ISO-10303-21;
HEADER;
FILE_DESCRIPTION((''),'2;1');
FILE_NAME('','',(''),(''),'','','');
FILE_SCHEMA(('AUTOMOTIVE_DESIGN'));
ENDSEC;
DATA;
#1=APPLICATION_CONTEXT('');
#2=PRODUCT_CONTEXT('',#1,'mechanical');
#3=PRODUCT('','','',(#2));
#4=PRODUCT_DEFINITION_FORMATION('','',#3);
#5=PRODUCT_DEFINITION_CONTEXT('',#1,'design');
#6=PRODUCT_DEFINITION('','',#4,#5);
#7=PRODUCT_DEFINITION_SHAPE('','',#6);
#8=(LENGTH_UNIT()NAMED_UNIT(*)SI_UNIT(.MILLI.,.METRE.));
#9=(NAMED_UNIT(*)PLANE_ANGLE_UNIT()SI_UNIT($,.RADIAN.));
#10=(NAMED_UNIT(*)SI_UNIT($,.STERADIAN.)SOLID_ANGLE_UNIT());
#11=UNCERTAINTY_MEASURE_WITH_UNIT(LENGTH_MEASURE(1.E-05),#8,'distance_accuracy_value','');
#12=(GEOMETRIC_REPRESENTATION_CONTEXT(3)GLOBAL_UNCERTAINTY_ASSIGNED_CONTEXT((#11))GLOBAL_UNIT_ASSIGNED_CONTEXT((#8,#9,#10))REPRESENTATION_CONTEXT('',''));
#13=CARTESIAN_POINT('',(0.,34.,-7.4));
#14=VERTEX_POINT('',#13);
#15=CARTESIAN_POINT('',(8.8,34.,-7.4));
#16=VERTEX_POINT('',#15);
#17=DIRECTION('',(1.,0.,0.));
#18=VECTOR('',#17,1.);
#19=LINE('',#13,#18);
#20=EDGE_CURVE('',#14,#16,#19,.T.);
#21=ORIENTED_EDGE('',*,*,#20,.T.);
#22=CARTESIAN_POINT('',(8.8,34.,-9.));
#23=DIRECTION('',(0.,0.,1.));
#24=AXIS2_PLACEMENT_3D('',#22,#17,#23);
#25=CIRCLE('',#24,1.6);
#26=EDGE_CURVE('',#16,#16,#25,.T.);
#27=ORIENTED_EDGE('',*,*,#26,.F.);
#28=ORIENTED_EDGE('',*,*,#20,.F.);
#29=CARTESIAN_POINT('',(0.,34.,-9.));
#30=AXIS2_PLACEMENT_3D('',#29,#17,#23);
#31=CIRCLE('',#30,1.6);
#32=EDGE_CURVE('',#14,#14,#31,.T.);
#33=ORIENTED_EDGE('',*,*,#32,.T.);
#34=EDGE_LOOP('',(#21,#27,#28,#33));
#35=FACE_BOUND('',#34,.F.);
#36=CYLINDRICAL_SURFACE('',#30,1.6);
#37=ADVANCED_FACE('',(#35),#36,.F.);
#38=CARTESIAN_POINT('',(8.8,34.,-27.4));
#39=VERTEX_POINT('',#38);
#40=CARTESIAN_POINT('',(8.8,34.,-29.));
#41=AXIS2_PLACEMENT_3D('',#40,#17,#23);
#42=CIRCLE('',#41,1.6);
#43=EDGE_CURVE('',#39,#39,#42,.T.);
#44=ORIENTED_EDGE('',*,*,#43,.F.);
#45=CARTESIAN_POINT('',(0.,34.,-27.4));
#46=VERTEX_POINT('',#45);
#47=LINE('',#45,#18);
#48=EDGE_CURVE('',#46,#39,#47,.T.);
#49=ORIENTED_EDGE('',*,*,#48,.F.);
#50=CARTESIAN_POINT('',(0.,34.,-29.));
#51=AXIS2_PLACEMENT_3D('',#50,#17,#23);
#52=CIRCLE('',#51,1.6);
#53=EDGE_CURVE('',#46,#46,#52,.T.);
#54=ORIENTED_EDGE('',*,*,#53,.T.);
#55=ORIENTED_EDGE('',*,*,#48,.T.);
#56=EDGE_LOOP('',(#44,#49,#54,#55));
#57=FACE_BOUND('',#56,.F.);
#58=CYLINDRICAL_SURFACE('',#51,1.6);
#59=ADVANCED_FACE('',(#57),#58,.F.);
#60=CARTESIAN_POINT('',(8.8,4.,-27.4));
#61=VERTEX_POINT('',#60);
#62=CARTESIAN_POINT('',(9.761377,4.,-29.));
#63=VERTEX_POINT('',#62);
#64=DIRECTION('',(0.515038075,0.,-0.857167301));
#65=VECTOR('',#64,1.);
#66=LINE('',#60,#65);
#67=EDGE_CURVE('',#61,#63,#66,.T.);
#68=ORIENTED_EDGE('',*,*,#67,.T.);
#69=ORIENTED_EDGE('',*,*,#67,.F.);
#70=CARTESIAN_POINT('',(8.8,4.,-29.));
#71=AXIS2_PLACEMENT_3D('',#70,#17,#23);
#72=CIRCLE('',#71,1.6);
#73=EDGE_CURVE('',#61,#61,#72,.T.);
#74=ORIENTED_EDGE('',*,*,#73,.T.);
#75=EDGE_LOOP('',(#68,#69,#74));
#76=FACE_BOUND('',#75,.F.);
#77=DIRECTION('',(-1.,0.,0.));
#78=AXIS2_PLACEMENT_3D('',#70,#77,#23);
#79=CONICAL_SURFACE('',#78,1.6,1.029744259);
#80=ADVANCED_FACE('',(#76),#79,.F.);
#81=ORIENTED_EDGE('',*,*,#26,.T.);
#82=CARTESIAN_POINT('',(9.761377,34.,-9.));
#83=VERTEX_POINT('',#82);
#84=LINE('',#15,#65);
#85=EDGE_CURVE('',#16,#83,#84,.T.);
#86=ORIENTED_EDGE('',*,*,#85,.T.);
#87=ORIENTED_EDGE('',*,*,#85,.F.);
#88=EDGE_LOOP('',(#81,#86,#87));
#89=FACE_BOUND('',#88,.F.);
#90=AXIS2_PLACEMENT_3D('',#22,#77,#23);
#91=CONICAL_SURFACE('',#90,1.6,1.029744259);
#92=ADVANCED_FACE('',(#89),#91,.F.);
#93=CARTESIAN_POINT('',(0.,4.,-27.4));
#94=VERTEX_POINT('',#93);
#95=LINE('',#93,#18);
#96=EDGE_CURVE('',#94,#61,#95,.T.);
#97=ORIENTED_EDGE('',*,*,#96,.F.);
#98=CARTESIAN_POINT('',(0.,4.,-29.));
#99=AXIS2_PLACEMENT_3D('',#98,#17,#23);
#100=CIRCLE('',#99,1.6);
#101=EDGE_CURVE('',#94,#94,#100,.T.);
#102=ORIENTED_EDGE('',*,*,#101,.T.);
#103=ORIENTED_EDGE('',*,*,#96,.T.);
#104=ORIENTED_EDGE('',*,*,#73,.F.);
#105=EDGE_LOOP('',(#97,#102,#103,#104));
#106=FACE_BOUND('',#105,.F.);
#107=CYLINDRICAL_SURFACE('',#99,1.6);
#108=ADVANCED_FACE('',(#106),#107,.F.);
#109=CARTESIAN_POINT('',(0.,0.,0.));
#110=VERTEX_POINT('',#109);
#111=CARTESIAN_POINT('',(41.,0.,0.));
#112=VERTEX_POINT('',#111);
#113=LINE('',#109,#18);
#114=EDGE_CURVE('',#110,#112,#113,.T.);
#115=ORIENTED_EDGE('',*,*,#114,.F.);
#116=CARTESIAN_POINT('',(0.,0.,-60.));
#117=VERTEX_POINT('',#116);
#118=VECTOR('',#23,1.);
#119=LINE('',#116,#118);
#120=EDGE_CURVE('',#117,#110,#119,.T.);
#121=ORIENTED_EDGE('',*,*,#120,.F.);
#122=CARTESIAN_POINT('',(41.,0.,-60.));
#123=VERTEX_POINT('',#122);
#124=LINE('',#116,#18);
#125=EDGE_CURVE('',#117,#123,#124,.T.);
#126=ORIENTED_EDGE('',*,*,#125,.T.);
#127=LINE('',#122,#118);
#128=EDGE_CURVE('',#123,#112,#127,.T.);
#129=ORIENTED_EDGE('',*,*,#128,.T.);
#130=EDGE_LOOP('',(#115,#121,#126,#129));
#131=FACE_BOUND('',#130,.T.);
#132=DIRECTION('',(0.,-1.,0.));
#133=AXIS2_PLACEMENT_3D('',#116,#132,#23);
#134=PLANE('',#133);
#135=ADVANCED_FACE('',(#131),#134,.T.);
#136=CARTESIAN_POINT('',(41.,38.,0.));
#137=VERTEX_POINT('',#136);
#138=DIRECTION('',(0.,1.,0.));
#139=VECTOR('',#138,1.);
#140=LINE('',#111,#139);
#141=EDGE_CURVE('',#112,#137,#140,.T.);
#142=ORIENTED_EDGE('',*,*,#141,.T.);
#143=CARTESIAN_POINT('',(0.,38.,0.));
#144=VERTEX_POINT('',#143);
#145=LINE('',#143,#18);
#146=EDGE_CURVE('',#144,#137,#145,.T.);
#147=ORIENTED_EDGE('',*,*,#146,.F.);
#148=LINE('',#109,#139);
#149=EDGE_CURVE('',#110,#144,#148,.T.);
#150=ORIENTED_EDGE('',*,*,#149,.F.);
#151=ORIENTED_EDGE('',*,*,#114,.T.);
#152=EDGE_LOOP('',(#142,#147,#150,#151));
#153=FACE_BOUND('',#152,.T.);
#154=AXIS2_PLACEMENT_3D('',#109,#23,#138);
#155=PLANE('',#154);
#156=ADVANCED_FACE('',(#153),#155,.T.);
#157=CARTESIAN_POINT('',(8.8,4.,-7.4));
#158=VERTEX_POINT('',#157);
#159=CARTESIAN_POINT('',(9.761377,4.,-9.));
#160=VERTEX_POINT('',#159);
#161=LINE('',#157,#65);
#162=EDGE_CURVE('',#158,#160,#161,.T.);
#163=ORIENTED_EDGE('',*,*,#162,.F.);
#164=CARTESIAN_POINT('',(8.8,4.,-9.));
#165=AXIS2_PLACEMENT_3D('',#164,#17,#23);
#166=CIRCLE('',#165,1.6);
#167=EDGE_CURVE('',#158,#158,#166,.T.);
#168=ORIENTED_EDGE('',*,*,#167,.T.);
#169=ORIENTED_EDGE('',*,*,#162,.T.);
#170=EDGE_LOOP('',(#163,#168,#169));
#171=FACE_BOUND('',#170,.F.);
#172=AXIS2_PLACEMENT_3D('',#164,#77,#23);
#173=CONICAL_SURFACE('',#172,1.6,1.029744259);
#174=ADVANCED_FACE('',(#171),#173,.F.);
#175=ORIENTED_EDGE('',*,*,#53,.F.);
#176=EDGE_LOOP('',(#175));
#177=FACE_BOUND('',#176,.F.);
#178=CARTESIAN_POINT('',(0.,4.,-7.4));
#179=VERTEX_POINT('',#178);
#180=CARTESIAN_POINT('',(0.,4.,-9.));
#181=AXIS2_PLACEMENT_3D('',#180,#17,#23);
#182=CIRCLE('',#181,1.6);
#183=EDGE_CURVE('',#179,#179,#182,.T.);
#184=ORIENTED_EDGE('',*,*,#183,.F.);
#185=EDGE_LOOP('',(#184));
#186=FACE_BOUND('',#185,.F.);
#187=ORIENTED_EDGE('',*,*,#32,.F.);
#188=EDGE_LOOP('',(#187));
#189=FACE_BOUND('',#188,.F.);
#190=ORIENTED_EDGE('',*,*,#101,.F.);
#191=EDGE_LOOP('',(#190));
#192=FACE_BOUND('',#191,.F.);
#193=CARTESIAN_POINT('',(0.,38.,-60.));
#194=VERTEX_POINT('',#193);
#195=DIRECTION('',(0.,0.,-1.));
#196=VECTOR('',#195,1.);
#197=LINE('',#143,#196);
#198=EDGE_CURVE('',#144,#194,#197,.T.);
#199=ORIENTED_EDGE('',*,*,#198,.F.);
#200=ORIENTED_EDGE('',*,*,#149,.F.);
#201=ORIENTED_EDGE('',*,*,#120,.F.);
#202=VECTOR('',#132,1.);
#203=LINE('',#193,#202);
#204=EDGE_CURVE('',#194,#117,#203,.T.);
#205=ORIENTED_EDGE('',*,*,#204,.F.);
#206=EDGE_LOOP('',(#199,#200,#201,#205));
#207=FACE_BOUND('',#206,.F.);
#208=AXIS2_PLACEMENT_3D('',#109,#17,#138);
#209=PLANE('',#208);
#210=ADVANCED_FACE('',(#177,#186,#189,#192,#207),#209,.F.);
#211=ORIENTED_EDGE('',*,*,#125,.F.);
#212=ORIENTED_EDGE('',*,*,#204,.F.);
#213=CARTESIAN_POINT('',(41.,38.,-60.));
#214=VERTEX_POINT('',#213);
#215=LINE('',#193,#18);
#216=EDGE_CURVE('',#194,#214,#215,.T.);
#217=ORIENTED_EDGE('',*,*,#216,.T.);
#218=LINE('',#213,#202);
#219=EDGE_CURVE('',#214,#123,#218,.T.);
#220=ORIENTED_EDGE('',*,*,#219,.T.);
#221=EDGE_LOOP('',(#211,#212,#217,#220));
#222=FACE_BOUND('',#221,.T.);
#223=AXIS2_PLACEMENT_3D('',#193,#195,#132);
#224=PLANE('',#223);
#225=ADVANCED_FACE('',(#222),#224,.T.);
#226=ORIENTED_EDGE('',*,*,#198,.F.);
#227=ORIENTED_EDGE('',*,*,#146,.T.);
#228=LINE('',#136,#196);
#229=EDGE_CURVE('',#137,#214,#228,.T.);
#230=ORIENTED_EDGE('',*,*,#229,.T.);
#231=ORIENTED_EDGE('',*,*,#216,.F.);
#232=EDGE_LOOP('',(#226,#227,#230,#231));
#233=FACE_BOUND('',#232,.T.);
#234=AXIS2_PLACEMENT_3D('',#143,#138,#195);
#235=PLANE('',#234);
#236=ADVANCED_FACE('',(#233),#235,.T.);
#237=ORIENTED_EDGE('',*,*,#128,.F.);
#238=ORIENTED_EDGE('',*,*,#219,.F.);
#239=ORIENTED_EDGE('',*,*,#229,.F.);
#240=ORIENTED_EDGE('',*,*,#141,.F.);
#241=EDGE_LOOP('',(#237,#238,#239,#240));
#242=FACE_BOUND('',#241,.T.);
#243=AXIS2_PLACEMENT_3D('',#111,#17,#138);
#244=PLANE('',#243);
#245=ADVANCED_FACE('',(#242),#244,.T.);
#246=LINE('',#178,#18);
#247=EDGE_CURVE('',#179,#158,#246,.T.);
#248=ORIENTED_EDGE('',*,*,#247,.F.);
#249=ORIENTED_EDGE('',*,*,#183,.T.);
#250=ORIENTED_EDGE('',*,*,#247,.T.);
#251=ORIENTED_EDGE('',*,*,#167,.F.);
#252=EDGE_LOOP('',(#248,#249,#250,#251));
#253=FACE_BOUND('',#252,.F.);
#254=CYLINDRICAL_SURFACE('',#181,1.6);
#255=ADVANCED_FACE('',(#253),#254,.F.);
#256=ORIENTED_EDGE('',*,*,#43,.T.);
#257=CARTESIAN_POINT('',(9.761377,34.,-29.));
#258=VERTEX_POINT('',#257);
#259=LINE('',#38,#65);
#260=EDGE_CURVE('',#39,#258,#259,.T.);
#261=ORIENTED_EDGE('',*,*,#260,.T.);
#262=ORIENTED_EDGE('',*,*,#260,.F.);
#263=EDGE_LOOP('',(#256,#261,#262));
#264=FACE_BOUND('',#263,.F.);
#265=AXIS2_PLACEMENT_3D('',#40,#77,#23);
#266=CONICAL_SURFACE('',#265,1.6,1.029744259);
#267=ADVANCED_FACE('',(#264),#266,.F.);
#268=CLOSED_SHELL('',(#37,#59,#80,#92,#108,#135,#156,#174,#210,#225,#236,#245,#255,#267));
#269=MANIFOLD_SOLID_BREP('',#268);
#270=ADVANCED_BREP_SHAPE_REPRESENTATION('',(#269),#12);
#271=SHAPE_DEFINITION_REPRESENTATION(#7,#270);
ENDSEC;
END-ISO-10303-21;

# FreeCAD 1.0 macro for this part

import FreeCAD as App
import Part
import Sketcher

V = App.Vector
Q = App.Units.Quantity

doc = App.newDocument("Part")
body = doc.addObject("PartDesign::Body", "Body")

# Sketch on YZ plane
sketch1 = body.newObject("Sketcher::SketchObject", "Sketch")
sketch1.AttachmentSupport = (doc.getObject("YZ_Plane"), [""])
sketch1.MapMode = "FlatFace"
sketch1.addGeometry([
    Part.LineSegment(V(38, 0, 0), V(0, 0, 0)),
    Part.LineSegment(V(0, 0, 0), V(0, -60, 0)),
    Part.LineSegment(V(0, -60, 0), V(38, -60, 0)),
    Part.LineSegment(V(38, -60, 0), V(38, 0, 0)),
], False)
sketch1.addConstraint([
    Sketcher.Constraint("Coincident", 0, 2, 1, 1),
    Sketcher.Constraint("Coincident", 1, 2, 2, 1),
    Sketcher.Constraint("Coincident", 2, 2, 3, 1),
    Sketcher.Constraint("Coincident", 3, 2, 0, 1),
    Sketcher.Constraint("Horizontal", 0),
    Sketcher.Constraint("Vertical", 1),
    Sketcher.Constraint("Horizontal", 2),
    Sketcher.Constraint("Vertical", 3),
    Sketcher.Constraint("Coincident", 0, 2, -1, 1),
    Sketcher.Constraint("DistanceX", 0, 2, 0, 1, Q("38 mm")),
    Sketcher.Constraint("DistanceY", 1, 2, 1, 1, Q("60 mm")),
])
pad1 = body.newObject("PartDesign::Pad", "Pad")
pad1.Profile = sketch1
pad1.Length = 41

# Sketch on YZ plane
sketch2 = body.newObject("Sketcher::SketchObject", "Sketch001")
sketch2.AttachmentSupport = (doc.getObject("YZ_Plane"), [""])
sketch2.MapMode = "FlatFace"
sketch2.addGeometry([
    Part.Circle(V(34, -29, 0), V(0, 0, 1), 1.6),
    Part.Circle(V(34, -9, 0), V(0, 0, 1), 1.6),
    Part.Circle(V(4, -9, 0), V(0, 0, 1), 1.6),
    Part.Circle(V(4, -29, 0), V(0, 0, 1), 1.6),
], False)
sketch2.addConstraint([
    Sketcher.Constraint("Equal", 0, 1),
    Sketcher.Constraint("Equal", 1, 2),
    Sketcher.Constraint("Equal", 2, 3),
    Sketcher.Constraint("Horizontal", 1, 3, 2, 3),
    Sketcher.Constraint("Horizontal", 0, 3, 3, 3),
    Sketcher.Constraint("Vertical", 0, 3, 1, 3),
    Sketcher.Constraint("Vertical", 2, 3, 3, 3),
    Sketcher.Constraint("Diameter", 0, Q("3.2 mm")),
    Sketcher.Constraint("DistanceX", -1, 1, 0, 3, Q("34 mm")),
    Sketcher.Constraint("DistanceY", 0, 3, -1, 1, Q("29 mm")),
    Sketcher.Constraint("DistanceY", 1, 3, -1, 1, Q("9 mm")),
    Sketcher.Constraint("DistanceX", -1, 1, 2, 3, Q("4 mm")),
])
doc.recompute()
hole = body.newObject("PartDesign::Hole", "Hole")
hole.Profile = sketch2
hole.ThreadType = "None"
hole.Diameter = 3.2
hole.DepthType = "Dimension"
hole.Depth = 8.8
hole.DrillPoint = "Angled"
hole.DrillPointAngle = 118
hole.Reversed = True

doc.recompute()
